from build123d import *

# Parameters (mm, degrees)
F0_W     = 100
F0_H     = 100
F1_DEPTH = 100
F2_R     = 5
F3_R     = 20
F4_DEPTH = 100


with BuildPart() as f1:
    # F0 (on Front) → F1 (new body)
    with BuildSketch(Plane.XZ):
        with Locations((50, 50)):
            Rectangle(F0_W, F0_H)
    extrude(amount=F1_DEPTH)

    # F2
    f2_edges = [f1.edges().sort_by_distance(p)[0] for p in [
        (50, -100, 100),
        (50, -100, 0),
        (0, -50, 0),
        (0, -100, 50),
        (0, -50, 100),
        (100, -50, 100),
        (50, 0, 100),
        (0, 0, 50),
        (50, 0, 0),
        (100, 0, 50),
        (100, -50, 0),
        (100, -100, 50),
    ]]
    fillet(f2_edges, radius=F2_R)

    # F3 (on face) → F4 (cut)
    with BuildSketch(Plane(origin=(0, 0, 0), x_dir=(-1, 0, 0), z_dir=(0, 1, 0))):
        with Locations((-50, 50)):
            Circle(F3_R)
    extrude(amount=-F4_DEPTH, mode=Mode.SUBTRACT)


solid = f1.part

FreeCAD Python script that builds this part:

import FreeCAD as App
import Part
import Sketcher

V = App.Vector


def add_polygon(sketch, points):
    """Adds a closed chain of lines whose ends are joined by coincident constraints."""
    first, n = sketch.GeometryCount, len(points)
    for a, b in zip(points, points[1:] + points[:1]):
        sketch.addGeometry(Part.LineSegment(App.Vector(*a, 0), App.Vector(*b, 0)), False)
    for i in range(n):
        sketch.addConstraint(Sketcher.Constraint("Coincident", first + i, 2, first + (i + 1) % n, 1))

doc = App.newDocument("Part")
body = doc.addObject("PartDesign::Body", "Body")

# Sketch on XZ plane
sketch1 = body.newObject("Sketcher::SketchObject", "Sketch")
sketch1.AttachmentSupport = (doc.getObject("XZ_Plane"), [""])
sketch1.MapMode = "FlatFace"
add_polygon(sketch1, [(0, 100), (0, 0), (100, 0), (100, 100)])  # lines 0-3
sketch1.addConstraint(Sketcher.Constraint("Vertical", 0))
sketch1.addConstraint(Sketcher.Constraint("Horizontal", 1))
sketch1.addConstraint(Sketcher.Constraint("Vertical", 2))
sketch1.addConstraint(Sketcher.Constraint("Horizontal", 3))
sketch1.addConstraint(Sketcher.Constraint("Coincident", 0, 2, -1, 1))
sketch1.addConstraint(Sketcher.Constraint("Equal", 3, 0))
sketch1.addConstraint(Sketcher.Constraint("DistanceX", 1, 1, 1, 2, 100.0))
pad1 = body.newObject("PartDesign::Pad", "Pad")
pad1.Profile = sketch1
pad1.Length = 100
doc.recompute()

fillet = body.newObject("PartDesign::Fillet", "Fillet")
fillet.Base = (pad1, ["Edge1"])
fillet.UseAllEdges = True
fillet.Radius = 5

# Sketch on XZ plane
sketch2 = body.newObject("Sketcher::SketchObject", "Sketch001")
sketch2.AttachmentSupport = (doc.getObject("XZ_Plane"), [""])
sketch2.MapMode = "FlatFace"
sketch2.addGeometry(Part.Circle(V(50, 50, 0), V(0, 0, 1), 20), False)
sketch2.addConstraint(Sketcher.Constraint("Diameter", 0, 40.0))
sketch2.addConstraint(Sketcher.Constraint("DistanceX", -1, 1, 0, 3, 50.0))
sketch2.addConstraint(Sketcher.Constraint("DistanceY", -1, 1, 0, 3, 50.0))
pocket1 = body.newObject("PartDesign::Pocket", "Pocket")
pocket1.Profile = sketch2
pocket1.Length = 100
pocket1.Reversed = True

doc.recompute()
